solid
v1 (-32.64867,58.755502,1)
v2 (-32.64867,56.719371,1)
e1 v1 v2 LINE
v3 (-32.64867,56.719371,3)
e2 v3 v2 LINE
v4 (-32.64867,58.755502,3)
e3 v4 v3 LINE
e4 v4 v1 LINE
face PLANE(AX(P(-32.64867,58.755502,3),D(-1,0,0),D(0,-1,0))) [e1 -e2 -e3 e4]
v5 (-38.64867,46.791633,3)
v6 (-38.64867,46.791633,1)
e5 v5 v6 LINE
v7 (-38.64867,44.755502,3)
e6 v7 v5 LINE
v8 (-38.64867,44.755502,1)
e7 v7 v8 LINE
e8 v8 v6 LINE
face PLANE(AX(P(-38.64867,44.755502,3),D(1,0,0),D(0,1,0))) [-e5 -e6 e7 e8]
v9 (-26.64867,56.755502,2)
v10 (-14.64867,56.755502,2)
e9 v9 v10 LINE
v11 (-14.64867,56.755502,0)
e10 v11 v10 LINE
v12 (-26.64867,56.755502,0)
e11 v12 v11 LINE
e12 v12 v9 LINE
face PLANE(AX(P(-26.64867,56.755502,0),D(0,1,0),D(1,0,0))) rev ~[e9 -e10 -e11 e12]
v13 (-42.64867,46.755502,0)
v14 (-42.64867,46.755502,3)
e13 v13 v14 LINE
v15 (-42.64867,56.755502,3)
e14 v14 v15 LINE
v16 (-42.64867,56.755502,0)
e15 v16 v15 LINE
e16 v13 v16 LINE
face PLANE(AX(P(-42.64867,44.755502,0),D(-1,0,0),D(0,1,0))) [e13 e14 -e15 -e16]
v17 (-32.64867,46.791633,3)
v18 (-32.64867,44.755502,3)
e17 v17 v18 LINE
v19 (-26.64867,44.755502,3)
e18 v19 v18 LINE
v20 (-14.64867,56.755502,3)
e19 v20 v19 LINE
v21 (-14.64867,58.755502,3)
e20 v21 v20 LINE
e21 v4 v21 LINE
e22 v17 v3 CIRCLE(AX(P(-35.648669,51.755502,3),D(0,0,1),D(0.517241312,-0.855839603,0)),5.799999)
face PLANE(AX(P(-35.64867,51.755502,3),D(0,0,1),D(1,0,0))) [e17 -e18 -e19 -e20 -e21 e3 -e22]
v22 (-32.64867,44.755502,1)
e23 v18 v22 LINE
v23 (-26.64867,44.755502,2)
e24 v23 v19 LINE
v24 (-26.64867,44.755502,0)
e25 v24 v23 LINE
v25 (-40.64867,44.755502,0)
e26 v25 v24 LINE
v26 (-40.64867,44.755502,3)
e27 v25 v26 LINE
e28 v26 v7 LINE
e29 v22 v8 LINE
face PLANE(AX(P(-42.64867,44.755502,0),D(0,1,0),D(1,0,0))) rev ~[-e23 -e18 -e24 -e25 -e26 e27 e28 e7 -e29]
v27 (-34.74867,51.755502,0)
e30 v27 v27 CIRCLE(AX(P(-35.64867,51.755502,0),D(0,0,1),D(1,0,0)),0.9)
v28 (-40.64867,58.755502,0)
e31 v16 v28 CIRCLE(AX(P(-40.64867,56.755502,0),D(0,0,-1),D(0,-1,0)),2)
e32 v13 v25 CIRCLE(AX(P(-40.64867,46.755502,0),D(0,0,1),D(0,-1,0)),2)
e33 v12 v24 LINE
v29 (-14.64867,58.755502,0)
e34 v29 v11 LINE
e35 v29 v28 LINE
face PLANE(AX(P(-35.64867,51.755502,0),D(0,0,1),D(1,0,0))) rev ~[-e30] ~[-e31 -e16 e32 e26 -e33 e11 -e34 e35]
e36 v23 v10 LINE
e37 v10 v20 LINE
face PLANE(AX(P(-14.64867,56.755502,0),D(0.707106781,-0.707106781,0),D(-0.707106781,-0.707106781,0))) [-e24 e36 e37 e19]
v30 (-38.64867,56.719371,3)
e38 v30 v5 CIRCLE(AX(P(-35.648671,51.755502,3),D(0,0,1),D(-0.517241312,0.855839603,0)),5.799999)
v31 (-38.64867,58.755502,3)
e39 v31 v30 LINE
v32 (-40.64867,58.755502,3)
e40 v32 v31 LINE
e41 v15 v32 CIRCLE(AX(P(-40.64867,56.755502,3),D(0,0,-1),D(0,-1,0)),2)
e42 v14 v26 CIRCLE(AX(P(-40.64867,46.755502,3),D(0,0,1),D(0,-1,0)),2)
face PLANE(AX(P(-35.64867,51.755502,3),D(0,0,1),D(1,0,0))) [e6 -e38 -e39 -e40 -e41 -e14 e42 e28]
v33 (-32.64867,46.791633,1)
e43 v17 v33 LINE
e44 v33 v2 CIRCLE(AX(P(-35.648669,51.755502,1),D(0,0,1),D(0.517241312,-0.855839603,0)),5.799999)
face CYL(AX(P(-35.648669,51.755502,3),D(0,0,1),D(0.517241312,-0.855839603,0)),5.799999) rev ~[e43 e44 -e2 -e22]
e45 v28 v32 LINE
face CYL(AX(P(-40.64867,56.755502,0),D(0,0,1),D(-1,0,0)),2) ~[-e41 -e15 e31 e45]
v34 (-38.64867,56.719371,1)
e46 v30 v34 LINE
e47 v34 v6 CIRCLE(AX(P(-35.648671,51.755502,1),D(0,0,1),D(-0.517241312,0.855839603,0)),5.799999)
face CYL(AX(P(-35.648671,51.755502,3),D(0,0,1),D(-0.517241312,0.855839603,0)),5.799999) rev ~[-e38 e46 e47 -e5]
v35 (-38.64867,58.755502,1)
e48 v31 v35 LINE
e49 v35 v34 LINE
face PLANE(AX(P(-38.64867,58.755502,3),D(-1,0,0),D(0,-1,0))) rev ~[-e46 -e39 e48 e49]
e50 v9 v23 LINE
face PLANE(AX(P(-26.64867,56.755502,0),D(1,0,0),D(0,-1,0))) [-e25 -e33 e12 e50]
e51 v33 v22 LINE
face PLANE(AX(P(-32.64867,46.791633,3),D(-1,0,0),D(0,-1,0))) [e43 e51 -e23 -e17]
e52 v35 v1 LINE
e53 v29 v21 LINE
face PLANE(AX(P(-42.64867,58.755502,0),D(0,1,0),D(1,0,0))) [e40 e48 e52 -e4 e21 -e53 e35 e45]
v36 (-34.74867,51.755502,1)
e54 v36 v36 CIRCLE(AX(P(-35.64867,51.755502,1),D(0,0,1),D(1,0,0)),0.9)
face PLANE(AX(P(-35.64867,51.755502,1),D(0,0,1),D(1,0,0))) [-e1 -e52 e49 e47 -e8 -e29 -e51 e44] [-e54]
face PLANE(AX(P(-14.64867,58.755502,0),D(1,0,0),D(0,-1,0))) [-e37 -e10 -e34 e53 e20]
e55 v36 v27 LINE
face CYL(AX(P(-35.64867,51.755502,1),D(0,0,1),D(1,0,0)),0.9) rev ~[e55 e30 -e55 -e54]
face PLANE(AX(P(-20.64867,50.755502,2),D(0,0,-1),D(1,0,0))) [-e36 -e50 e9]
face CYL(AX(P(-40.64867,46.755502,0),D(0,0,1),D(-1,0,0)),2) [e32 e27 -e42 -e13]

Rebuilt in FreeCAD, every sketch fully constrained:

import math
import FreeCAD as App
import Part
import Sketcher


def edges_at(feature, points):
    """Names of the edges that pass closest to the given points."""
    edges = feature.Shape.Edges
    near = lambda p: min(range(len(edges)), key=lambda i: edges[i].distToShape(Part.Vertex(*p))[0])
    return sorted({f"Edge{near(p) + 1}" for p in points})

doc = App.newDocument("Part")
body = doc.addObject("PartDesign::Body", "Body")

# Sketch on XY plane
sketch1 = body.newObject("Sketcher::SketchObject", "Sketch")
sketch1.AttachmentSupport = (doc.getObject("XY_Plane"), [""])
sketch1.MapMode = "FlatFace"
sketch1.addGeometry([
    Part.LineSegment(App.Vector(-7, 7, 0), App.Vector(-7, -7, 0)),
    Part.LineSegment(App.Vector(-7, -7, 0), App.Vector(7, -7, 0)),
    Part.LineSegment(App.Vector(7, -7, 0), App.Vector(7, 7, 0)),
    Part.LineSegment(App.Vector(7, 7, 0), App.Vector(-7, 7, 0)),
], False)
sketch1.addConstraint([
    Sketcher.Constraint("Coincident", 0, 2, 1, 1),
    Sketcher.Constraint("Coincident", 1, 2, 2, 1),
    Sketcher.Constraint("Coincident", 2, 2, 3, 1),
    Sketcher.Constraint("Coincident", 3, 2, 0, 1),
    Sketcher.Constraint("Vertical", 0),
    Sketcher.Constraint("Horizontal", 1),
    Sketcher.Constraint("Vertical", 2),
    Sketcher.Constraint("Horizontal", 3),
    Sketcher.Constraint("Symmetric", 0, 2, 2, 2, -1, 1),
    Sketcher.Constraint("Equal", 3, 0),
    Sketcher.Constraint("DistanceX", 1, 1, 1, 2, 14.0),
])
pad1 = body.newObject("PartDesign::Pad", "Pad")
pad1.Profile = sketch1
pad1.Length = 3

# Sketch on XY plane
sketch2 = body.newObject("Sketcher::SketchObject", "Sketch001")
sketch2.AttachmentSupport = (doc.getObject("XY_Plane"), [""])
sketch2.MapMode = "FlatFace"
sketch2.AttachmentOffset = App.Placement(App.Vector(0, 0, 3), App.Rotation())
sketch2.addGeometry([
    Part.LineSegment(App.Vector(-3, 7, 0), App.Vector(-3, 5, 0)),  # 0
    Part.ArcOfCircle(Part.Circle(App.Vector(0, 0, 0), App.Vector(0, 0, 1), 5.8), math.radians(121), math.radians(239)),  # 1
    Part.LineSegment(App.Vector(-3, -5, 0), App.Vector(-3, -7, 0)),  # 2
    Part.LineSegment(App.Vector(-3, -7, 0), App.Vector(3, -7, 0)),  # 3
    Part.LineSegment(App.Vector(3, -7, 0), App.Vector(3, -5, 0)),  # 4
    Part.ArcOfCircle(Part.Circle(App.Vector(0, 0, 0), App.Vector(0, 0, 1), 5.8), math.radians(-59), math.radians(59)),  # 5
    Part.LineSegment(App.Vector(3, 5, 0), App.Vector(3, 7, 0)),  # 6
    Part.LineSegment(App.Vector(3, 7, 0), App.Vector(-3, 7, 0)),  # 7
], False)
sketch2.addConstraint([
    Sketcher.Constraint("Coincident", 0, 2, 1, 1),
    Sketcher.Constraint("Coincident", 1, 2, 2, 1),
    Sketcher.Constraint("Coincident", 2, 2, 3, 1),
    Sketcher.Constraint("Coincident", 3, 2, 4, 1),
    Sketcher.Constraint("Coincident", 4, 2, 5, 1),
    Sketcher.Constraint("Coincident", 5, 2, 6, 1),
    Sketcher.Constraint("Coincident", 6, 2, 7, 1),
    Sketcher.Constraint("Coincident", 7, 2, 0, 1),
    Sketcher.Constraint("Vertical", 0),
    Sketcher.Constraint("Vertical", 2),
    Sketcher.Constraint("Horizontal", 3),
    Sketcher.Constraint("Vertical", 4),
    Sketcher.Constraint("Vertical", 6),
    Sketcher.Constraint("Horizontal", 7),
    Sketcher.Constraint("Coincident", 1, 3, -1, 1),
    Sketcher.Constraint("Coincident", 5, 3, -1, 1),
    Sketcher.Constraint("Equal", 1, 5),
    Sketcher.Constraint("Symmetric", 2, 2, 6, 2, -1, 1),
    Sketcher.Constraint("Horizontal", 1, 2, 4, 2),
    Sketcher.Constraint("Horizontal", 0, 2, 5, 2),
    Sketcher.Constraint("Radius", 1, 5.799999),
    Sketcher.Constraint("DistanceX", 3, 1, 3, 2, 6.0),
    Sketcher.Constraint("DistanceY", 2, 2, -1, 1, 7.0),
])
pocket1 = body.newObject("PartDesign::Pocket", "Pocket")
pocket1.Profile = sketch2
pocket1.Length = 2

# Sketch on XY plane
sketch3 = body.newObject("Sketcher::SketchObject", "Sketch002")
sketch3.AttachmentSupport = (doc.getObject("XY_Plane"), [""])
sketch3.MapMode = "FlatFace"
sketch3.AttachmentOffset = App.Placement(App.Vector(0, 0, 1), App.Rotation())
sketch3.addGeometry(Part.Circle(App.Vector(0, 0, 0), App.Vector(0, 0, 1), 0.9), False)
sketch3.addConstraint([
    Sketcher.Constraint("Coincident", 0, 3, -1, 1),
    Sketcher.Constraint("Diameter", 0, 1.8),
])
pocket2 = body.newObject("PartDesign::Pocket", "Pocket001")
pocket2.Profile = sketch3
pocket2.Type = "ThroughAll"
body2 = doc.addObject("PartDesign::Body", "Body001")

# Sketch on XY plane
sketch4 = body2.newObject("Sketcher::SketchObject", "Sketch003")
sketch4.AttachmentSupport = (doc.getObject("XY_Plane001"), [""])
sketch4.MapMode = "FlatFace"
sketch4.addGeometry([
    Part.LineSegment(App.Vector(-7, 7, 0), App.Vector(-7, -7, 0)),  # 0
    Part.LineSegment(App.Vector(-7, -7, 0), App.Vector(-5, -7, 0)),  # 1
    Part.LineSegment(App.Vector(-5, -7, 0), App.Vector(7, 5, 0)),  # 2
    Part.LineSegment(App.Vector(7, 5, 0), App.Vector(7, 7, 0)),  # 3
    Part.LineSegment(App.Vector(7, 7, 0), App.Vector(-7, 7, 0)),  # 4
], False)
sketch4.addConstraint([
    Sketcher.Constraint("Coincident", 0, 2, 1, 1),
    Sketcher.Constraint("Coincident", 1, 2, 2, 1),
    Sketcher.Constraint("Coincident", 2, 2, 3, 1),
    Sketcher.Constraint("Coincident", 3, 2, 4, 1),
    Sketcher.Constraint("Coincident", 4, 2, 0, 1),
    Sketcher.Constraint("Vertical", 0),
    Sketcher.Constraint("Horizontal", 1),
    Sketcher.Constraint("Vertical", 3),
    Sketcher.Constraint("Horizontal", 4),
    Sketcher.Constraint("Symmetric", 0, 2, 3, 2, -1, 1),
    Sketcher.Constraint("Equal", 4, 0),
    Sketcher.Constraint("Equal", 1, 3),
    Sketcher.Constraint("DistanceX", 1, 1, 1, 2, 2.0),
    Sketcher.Constraint("DistanceX", 4, 2, 4, 1, 14.0),
])
pad2 = body2.newObject("PartDesign::Pad", "Pad001")
pad2.Profile = sketch4
pad2.Length = 3

# Sketch on XY plane
sketch5 = body2.newObject("Sketcher::SketchObject", "Sketch004")
sketch5.AttachmentSupport = (doc.getObject("XY_Plane001"), [""])
sketch5.MapMode = "FlatFace"
sketch5.addGeometry([
    Part.LineSegment(App.Vector(-5, -7, 0), App.Vector(-5, 5, 0)),
    Part.LineSegment(App.Vector(-5, 5, 0), App.Vector(7, 5, 0)),
    Part.LineSegment(App.Vector(7, 5, 0), App.Vector(7, -7, 0)),
    Part.LineSegment(App.Vector(7, -7, 0), App.Vector(-5, -7, 0)),
], False)
sketch5.addConstraint([
    Sketcher.Constraint("Coincident", 0, 2, 1, 1),
    Sketcher.Constraint("Coincident", 1, 2, 2, 1),
    Sketcher.Constraint("Coincident", 2, 2, 3, 1),
    Sketcher.Constraint("Coincident", 3, 2, 0, 1),
    Sketcher.Constraint("Vertical", 0),
    Sketcher.Constraint("Horizontal", 1),
    Sketcher.Constraint("Vertical", 2),
    Sketcher.Constraint("Horizontal", 3),
    Sketcher.Constraint("Equal", 3, 0),
    Sketcher.Constraint("DistanceX", 1, 1, 1, 2, 12.0),
    Sketcher.Constraint("DistanceX", 0, 2, -1, 1, 5.0),
    Sketcher.Constraint("DistanceY", -1, 1, 0, 2, 5.0),
])
pocket3 = body2.newObject("PartDesign::Pocket", "Pocket002")
pocket3.Profile = sketch5
pocket3.Length = 2
pocket3.Reversed = True
body3 = doc.addObject("PartDesign::Body", "Body002")
doc.recompute()

body2.Placement = App.Placement(App.Vector(14, 0, 0), App.Rotation(App.Vector(0, 0, 1), 0))
boolean = body3.newObject("PartDesign::Boolean", "Boolean")
boolean.Type = "Fuse"
boolean.addObjects([body2])
doc.recompute()

boolean2 = body3.newObject("PartDesign::Boolean", "Boolean001")
boolean2.Type = "Fuse"
boolean2.addObjects([body])
doc.recompute()

fillet = body3.newObject("PartDesign::Fillet", "Fillet")
fillet.Base = (boolean2, edges_at(boolean2, [(-7, -7, 1.5), (-7, 7, 1.5)]))
fillet.Radius = 2
body4 = doc.addObject("PartDesign::Body", "Body003")
doc.recompute()

body3.Placement = App.Placement(App.Vector(-35.64867, 51.755502, 0), App.Rotation(App.Vector(0, 0, 1), 0))
boolean3 = body4.newObject("PartDesign::Boolean", "Boolean002")
boolean3.Type = "Fuse"
boolean3.addObjects([body3])

doc.recompute()
